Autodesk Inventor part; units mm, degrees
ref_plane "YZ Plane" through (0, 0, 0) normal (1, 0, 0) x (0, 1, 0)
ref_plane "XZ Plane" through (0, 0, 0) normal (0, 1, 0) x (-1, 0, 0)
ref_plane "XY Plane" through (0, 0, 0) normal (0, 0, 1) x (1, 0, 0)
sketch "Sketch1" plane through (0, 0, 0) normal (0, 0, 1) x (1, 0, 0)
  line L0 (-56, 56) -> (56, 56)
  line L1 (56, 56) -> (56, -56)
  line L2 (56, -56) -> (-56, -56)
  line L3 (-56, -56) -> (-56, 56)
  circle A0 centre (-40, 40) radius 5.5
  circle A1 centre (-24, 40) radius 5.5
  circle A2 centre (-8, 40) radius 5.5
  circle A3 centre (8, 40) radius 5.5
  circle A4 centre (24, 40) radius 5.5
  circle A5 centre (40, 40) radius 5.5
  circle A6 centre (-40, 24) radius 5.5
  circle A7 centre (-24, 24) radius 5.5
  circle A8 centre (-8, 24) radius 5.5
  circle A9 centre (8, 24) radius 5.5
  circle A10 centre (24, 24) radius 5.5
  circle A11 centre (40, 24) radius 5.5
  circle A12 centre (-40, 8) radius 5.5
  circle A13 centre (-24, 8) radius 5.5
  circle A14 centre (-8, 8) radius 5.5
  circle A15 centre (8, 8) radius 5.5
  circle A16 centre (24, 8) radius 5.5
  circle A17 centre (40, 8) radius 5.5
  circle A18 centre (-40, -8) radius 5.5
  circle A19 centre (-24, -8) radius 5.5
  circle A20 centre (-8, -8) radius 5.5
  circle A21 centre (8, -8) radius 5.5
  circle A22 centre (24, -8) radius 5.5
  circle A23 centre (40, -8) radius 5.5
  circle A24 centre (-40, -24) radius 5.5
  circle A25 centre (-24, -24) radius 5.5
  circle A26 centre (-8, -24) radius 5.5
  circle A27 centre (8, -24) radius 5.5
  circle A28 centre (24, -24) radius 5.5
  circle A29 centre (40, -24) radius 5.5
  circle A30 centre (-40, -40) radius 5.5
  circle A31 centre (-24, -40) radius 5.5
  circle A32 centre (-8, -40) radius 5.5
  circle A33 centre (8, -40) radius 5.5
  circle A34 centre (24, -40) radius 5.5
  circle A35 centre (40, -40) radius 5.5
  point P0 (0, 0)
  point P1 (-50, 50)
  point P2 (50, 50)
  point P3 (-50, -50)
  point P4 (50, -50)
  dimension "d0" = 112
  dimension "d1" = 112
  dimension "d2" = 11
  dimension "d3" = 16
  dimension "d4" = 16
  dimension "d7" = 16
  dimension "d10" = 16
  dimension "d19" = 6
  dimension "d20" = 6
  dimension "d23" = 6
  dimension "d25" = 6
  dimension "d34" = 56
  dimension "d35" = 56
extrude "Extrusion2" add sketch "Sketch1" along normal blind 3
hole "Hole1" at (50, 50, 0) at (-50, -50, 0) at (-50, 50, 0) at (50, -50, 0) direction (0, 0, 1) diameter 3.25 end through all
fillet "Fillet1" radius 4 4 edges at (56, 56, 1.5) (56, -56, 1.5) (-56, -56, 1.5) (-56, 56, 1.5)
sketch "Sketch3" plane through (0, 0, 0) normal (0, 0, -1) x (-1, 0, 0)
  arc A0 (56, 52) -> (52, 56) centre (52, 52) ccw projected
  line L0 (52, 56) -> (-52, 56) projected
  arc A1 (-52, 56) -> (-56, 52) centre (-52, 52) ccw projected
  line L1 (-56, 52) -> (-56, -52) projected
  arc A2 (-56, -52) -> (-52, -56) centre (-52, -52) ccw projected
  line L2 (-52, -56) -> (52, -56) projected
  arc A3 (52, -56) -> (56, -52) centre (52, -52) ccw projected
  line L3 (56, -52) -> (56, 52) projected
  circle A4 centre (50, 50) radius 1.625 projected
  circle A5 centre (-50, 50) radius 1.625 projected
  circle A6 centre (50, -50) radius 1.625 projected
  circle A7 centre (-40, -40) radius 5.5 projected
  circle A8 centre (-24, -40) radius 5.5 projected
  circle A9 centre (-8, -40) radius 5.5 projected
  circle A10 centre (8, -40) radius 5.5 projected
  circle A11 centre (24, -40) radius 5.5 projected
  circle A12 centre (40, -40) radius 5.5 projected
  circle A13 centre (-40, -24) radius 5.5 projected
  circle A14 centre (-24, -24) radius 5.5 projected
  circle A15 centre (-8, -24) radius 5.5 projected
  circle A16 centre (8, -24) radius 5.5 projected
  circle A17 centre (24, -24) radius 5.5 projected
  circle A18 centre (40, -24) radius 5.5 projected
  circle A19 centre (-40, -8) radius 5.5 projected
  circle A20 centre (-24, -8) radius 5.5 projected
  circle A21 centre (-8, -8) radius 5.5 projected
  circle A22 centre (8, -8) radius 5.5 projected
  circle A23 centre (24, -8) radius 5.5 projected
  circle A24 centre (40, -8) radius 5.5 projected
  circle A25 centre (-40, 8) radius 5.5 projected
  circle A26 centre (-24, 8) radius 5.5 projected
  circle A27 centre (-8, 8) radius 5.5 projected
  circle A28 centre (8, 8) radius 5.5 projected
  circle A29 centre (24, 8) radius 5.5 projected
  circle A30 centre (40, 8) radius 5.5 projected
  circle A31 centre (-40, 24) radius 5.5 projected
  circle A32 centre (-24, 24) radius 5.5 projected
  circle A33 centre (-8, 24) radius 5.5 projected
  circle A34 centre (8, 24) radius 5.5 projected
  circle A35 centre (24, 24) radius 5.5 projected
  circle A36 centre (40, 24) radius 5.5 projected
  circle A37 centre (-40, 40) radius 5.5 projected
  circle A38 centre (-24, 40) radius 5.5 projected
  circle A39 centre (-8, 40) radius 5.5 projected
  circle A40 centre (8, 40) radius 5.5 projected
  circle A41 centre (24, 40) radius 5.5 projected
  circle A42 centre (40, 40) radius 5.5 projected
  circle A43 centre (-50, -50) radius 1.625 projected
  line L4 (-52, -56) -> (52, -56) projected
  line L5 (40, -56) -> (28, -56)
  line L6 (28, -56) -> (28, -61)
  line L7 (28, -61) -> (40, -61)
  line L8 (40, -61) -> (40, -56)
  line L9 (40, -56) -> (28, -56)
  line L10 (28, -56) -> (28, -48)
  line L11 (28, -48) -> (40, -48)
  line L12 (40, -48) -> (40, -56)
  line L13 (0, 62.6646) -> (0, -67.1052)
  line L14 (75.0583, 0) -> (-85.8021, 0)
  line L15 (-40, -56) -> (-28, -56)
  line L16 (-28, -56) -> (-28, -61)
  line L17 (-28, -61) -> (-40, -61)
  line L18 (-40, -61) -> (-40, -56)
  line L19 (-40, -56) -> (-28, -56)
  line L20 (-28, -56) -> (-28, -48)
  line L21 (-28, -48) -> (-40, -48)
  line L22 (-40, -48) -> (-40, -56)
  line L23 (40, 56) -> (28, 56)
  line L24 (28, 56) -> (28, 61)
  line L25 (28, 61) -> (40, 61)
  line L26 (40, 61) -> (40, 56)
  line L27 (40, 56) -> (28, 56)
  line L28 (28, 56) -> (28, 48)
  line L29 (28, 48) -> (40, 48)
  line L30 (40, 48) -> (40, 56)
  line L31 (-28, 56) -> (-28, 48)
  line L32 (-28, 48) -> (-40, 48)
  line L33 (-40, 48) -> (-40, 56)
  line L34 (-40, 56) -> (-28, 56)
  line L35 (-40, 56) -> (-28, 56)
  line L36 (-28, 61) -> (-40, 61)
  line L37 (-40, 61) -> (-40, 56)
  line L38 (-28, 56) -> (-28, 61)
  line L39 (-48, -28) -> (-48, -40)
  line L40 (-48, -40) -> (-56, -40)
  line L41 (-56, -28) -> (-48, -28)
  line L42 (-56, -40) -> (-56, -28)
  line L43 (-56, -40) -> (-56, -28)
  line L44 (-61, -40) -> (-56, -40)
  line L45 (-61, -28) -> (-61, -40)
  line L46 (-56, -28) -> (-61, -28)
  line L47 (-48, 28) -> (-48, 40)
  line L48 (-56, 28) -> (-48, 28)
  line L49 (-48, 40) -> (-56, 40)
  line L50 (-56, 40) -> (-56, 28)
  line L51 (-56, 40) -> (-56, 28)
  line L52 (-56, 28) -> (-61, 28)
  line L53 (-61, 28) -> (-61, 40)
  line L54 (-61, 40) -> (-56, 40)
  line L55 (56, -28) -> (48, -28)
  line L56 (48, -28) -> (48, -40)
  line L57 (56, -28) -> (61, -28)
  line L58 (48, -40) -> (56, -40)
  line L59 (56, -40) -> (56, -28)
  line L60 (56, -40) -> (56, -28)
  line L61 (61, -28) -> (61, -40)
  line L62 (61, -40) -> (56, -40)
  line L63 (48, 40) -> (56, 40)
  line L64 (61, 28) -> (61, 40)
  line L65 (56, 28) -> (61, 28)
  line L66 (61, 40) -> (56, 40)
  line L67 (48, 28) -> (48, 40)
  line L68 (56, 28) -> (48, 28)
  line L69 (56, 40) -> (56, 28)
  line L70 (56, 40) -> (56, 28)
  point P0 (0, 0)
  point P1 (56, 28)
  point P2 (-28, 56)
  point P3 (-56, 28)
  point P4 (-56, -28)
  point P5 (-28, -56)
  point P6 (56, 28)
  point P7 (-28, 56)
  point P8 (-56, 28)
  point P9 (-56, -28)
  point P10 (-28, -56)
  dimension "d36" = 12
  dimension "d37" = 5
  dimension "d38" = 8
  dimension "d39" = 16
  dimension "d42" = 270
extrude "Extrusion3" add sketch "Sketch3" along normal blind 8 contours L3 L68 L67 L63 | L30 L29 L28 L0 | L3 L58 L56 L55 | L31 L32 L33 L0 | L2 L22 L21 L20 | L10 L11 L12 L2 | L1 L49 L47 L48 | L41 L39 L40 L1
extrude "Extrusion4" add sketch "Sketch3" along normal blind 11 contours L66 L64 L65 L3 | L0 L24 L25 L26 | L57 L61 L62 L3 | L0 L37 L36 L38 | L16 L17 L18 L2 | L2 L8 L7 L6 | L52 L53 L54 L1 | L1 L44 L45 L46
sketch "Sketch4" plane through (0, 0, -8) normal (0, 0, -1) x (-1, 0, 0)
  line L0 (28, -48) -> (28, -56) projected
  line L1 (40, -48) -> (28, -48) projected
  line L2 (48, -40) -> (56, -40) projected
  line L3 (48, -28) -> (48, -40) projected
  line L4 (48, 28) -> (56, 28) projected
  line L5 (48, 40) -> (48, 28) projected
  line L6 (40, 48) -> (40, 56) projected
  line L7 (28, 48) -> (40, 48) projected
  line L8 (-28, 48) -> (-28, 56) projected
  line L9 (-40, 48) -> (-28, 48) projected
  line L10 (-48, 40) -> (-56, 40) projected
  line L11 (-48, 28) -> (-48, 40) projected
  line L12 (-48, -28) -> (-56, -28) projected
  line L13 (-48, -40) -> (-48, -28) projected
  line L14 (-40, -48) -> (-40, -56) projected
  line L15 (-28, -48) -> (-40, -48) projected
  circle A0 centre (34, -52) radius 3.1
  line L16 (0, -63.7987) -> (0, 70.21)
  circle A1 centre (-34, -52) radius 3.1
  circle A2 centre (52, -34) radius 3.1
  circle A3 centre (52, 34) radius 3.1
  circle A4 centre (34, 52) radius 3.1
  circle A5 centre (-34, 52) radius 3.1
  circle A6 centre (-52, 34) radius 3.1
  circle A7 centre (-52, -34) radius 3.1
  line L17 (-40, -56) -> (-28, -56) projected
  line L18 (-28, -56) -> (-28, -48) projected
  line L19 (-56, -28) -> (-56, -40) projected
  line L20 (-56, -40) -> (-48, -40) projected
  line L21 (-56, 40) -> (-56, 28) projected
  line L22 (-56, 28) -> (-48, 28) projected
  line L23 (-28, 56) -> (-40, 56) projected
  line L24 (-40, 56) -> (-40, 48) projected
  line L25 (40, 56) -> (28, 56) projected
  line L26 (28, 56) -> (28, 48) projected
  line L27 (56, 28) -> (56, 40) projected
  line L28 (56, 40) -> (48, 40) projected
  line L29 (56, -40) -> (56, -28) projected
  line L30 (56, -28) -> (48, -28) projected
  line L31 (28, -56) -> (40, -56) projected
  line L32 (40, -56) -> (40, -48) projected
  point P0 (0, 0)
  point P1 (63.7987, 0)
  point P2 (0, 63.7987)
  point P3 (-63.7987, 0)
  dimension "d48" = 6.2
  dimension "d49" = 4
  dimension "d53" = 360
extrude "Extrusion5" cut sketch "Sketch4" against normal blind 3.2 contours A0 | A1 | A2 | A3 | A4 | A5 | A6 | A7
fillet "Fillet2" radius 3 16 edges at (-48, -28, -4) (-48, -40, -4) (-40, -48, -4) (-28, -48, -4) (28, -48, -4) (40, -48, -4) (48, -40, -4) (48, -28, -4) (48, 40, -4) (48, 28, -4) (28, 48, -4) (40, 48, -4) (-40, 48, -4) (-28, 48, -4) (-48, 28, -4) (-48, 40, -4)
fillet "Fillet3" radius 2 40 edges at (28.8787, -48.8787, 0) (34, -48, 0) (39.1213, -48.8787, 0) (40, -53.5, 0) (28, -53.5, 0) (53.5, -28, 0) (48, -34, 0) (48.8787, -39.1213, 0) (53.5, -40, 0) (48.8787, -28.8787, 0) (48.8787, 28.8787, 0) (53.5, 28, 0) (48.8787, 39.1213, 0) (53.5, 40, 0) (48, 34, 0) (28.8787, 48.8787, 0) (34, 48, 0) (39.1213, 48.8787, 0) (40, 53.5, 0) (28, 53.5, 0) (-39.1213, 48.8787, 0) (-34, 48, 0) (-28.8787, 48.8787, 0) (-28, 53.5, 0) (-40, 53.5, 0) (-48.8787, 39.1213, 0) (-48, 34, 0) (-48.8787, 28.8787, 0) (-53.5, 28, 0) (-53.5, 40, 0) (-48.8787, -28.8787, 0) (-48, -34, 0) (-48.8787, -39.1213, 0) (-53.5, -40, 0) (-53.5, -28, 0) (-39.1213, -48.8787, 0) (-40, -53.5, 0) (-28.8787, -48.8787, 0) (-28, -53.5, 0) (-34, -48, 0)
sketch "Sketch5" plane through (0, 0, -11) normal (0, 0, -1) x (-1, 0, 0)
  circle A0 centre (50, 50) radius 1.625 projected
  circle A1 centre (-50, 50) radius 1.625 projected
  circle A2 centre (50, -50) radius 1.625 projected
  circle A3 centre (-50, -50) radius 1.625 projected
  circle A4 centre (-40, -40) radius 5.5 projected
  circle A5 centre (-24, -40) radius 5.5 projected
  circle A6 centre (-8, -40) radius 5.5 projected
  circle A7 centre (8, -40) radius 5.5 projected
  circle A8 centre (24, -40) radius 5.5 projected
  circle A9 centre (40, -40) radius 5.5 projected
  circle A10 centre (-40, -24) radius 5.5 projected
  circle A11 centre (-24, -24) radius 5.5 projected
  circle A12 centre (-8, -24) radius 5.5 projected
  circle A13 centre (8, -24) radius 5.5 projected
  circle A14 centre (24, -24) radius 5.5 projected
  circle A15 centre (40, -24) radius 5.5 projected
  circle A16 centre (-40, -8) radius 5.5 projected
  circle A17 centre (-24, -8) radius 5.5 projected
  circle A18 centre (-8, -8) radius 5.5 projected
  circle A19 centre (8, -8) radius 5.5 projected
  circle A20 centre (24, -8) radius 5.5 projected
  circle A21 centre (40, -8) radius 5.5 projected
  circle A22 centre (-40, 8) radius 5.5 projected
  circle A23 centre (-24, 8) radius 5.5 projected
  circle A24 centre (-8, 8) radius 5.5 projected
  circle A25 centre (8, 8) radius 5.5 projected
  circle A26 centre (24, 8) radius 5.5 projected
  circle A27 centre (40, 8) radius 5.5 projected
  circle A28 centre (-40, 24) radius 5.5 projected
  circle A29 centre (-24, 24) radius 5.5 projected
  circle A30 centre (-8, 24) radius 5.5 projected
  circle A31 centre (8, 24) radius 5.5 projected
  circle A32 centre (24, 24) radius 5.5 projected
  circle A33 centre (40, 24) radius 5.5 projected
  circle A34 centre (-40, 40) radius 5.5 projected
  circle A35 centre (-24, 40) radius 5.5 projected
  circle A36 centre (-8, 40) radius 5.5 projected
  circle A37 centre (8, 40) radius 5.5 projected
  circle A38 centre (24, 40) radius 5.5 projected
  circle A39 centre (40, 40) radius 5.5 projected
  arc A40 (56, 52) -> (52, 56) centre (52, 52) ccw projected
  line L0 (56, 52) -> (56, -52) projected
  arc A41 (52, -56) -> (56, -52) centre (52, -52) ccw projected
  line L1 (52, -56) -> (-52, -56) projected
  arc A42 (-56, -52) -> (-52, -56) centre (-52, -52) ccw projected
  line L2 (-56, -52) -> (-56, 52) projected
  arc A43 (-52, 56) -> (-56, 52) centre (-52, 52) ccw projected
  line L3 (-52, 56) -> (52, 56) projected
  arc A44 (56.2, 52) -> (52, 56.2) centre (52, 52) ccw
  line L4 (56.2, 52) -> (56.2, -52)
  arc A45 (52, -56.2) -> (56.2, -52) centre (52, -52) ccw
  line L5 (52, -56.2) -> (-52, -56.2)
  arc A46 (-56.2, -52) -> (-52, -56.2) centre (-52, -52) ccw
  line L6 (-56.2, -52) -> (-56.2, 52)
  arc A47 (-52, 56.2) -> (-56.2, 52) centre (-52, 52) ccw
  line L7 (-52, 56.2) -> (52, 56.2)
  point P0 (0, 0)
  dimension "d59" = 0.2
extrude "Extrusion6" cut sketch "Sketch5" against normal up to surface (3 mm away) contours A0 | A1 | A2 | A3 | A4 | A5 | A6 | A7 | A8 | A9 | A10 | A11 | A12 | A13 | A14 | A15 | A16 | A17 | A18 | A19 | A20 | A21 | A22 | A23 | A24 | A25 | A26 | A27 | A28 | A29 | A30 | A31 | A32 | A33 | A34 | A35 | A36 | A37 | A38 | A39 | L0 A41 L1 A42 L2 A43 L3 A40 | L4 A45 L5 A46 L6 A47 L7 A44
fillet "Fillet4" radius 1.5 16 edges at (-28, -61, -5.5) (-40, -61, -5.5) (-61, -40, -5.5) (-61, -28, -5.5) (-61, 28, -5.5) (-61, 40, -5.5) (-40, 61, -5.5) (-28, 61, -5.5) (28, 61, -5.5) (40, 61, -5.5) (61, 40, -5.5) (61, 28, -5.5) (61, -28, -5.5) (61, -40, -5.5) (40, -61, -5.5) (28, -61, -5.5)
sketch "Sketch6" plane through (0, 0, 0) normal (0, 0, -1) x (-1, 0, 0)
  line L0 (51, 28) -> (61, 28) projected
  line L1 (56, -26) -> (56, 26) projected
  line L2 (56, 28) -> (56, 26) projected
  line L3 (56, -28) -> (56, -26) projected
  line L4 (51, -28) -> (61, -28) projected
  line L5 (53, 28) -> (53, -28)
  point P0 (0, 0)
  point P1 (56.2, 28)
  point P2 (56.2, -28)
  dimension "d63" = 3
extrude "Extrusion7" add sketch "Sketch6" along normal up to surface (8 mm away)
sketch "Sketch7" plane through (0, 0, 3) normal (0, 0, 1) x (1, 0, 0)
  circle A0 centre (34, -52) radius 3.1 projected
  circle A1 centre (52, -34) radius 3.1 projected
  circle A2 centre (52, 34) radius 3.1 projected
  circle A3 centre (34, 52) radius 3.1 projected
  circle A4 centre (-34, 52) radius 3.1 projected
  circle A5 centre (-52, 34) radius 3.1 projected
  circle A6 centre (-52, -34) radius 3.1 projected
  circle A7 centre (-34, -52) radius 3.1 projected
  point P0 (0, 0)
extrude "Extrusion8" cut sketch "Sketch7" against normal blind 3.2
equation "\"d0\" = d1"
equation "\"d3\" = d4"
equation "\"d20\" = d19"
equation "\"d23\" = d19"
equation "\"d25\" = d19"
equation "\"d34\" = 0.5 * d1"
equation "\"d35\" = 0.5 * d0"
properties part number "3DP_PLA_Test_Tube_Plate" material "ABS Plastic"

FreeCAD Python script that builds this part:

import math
import FreeCAD as App
import Part
import Sketcher
from FreeCAD import Vector
Q = App.Units.Quantity


def edges_at(feature, points):
    """Names of the edges that pass closest to the given points."""
    edges = feature.Shape.Edges
    near = lambda p: min(range(len(edges)), key=lambda i: edges[i].distToShape(Part.Vertex(*p))[0])
    return sorted({f"Edge{near(p) + 1}" for p in points})

doc = App.newDocument("Part")
body = doc.addObject("PartDesign::Body", "Body")

sketch1 = doc.addObject("Sketcher::SketchObject", "Sketch")
body.addObject(sketch1)
sketch1.AttachmentSupport = (doc.XY_Plane, [""])
sketch1.MapMode = "FlatFace"
sketch1.addGeometry([
    Part.LineSegment(Vector(56, 56, 0), Vector(-56, 56, 0)),
    Part.LineSegment(Vector(-56, 56, 0), Vector(-56, -56, 0)),
    Part.LineSegment(Vector(-56, -56, 0), Vector(56, -56, 0)),
    Part.LineSegment(Vector(56, -56, 0), Vector(56, 56, 0)),
    Part.Circle(Vector(-40, -40, 0), Vector(0, 0, 1), 5.5),
    Part.Circle(Vector(-24, -40, 0), Vector(0, 0, 1), 5.5),
    Part.Circle(Vector(-8, -40, 0), Vector(0, 0, 1), 5.5),
    Part.Circle(Vector(-40, -24, 0), Vector(0, 0, 1), 5.5),
    Part.Circle(Vector(-40, -8, 0), Vector(0, 0, 1), 5.5),
    Part.Circle(Vector(-24, -24, 0), Vector(0, 0, 1), 5.5),
    Part.Circle(Vector(-8, -24, 0), Vector(0, 0, 1), 5.5),
    Part.Circle(Vector(-24, -8, 0), Vector(0, 0, 1), 5.5),
    Part.Circle(Vector(-8, -8, 0), Vector(0, 0, 1), 5.5),
    Part.Circle(Vector(8, -40, 0), Vector(0, 0, 1), 5.5),
    Part.Circle(Vector(24, -40, 0), Vector(0, 0, 1), 5.5),
    Part.Circle(Vector(40, -40, 0), Vector(0, 0, 1), 5.5),
    Part.Circle(Vector(8, -24, 0), Vector(0, 0, 1), 5.5),
    Part.Circle(Vector(24, -24, 0), Vector(0, 0, 1), 5.5),
    Part.Circle(Vector(8, -8, 0), Vector(0, 0, 1), 5.5),
    Part.Circle(Vector(24, -8, 0), Vector(0, 0, 1), 5.5),
    Part.Circle(Vector(40, -24, 0), Vector(0, 0, 1), 5.5),
    Part.Circle(Vector(40, -8, 0), Vector(0, 0, 1), 5.5),
    Part.Circle(Vector(-40, 8, 0), Vector(0, 0, 1), 5.5),
    Part.Circle(Vector(-40, 24, 0), Vector(0, 0, 1), 5.5),
    Part.Circle(Vector(-24, 8, 0), Vector(0, 0, 1), 5.5),
    Part.Circle(Vector(-8, 8, 0), Vector(0, 0, 1), 5.5),
    Part.Circle(Vector(-24, 24, 0), Vector(0, 0, 1), 5.5),
    Part.Circle(Vector(-8, 24, 0), Vector(0, 0, 1), 5.5),
    Part.Circle(Vector(-40, 40, 0), Vector(0, 0, 1), 5.5),
    Part.Circle(Vector(-24, 40, 0), Vector(0, 0, 1), 5.5),
    Part.Circle(Vector(-8, 40, 0), Vector(0, 0, 1), 5.5),
    Part.Circle(Vector(8, 8, 0), Vector(0, 0, 1), 5.5),
    Part.Circle(Vector(24, 8, 0), Vector(0, 0, 1), 5.5),
    Part.Circle(Vector(8, 24, 0), Vector(0, 0, 1), 5.5),
    Part.Circle(Vector(24, 24, 0), Vector(0, 0, 1), 5.5),
    Part.Circle(Vector(40, 8, 0), Vector(0, 0, 1), 5.5),
    Part.Circle(Vector(40, 24, 0), Vector(0, 0, 1), 5.5),
    Part.Circle(Vector(8, 40, 0), Vector(0, 0, 1), 5.5),
    Part.Circle(Vector(24, 40, 0), Vector(0, 0, 1), 5.5),
    Part.Circle(Vector(40, 40, 0), Vector(0, 0, 1), 5.5),
], False)
sketch1.addConstraint([
    Sketcher.Constraint("Coincident", 0, 2, 1, 1),
    Sketcher.Constraint("Coincident", 1, 2, 2, 1),
    Sketcher.Constraint("Coincident", 2, 2, 3, 1),
    Sketcher.Constraint("Coincident", 3, 2, 0, 1),
    Sketcher.Constraint("Horizontal", 0),
    Sketcher.Constraint("Vertical", 1),
    Sketcher.Constraint("Horizontal", 2),
    Sketcher.Constraint("Vertical", 3),
    Sketcher.Constraint("Equal", 4, 5),
    Sketcher.Constraint("Equal", 5, 6),
    Sketcher.Constraint("Equal", 6, 7),
    Sketcher.Constraint("Equal", 7, 8),
    Sketcher.Constraint("Equal", 8, 9),
    Sketcher.Constraint("Equal", 9, 10),
    Sketcher.Constraint("Equal", 10, 11),
    Sketcher.Constraint("Equal", 11, 12),
    Sketcher.Constraint("Equal", 12, 13),
    Sketcher.Constraint("Equal", 13, 14),
    Sketcher.Constraint("Equal", 14, 15),
    Sketcher.Constraint("Equal", 15, 16),
    Sketcher.Constraint("Equal", 16, 17),
    Sketcher.Constraint("Equal", 17, 18),
    Sketcher.Constraint("Equal", 18, 19),
    Sketcher.Constraint("Equal", 19, 20),
    Sketcher.Constraint("Equal", 20, 21),
    Sketcher.Constraint("Equal", 21, 22),
    Sketcher.Constraint("Equal", 22, 23),
    Sketcher.Constraint("Equal", 23, 24),
    Sketcher.Constraint("Equal", 24, 25),
    Sketcher.Constraint("Equal", 25, 26),
    Sketcher.Constraint("Equal", 26, 27),
    Sketcher.Constraint("Equal", 27, 28),
    Sketcher.Constraint("Equal", 28, 29),
    Sketcher.Constraint("Equal", 29, 30),
    Sketcher.Constraint("Equal", 30, 31),
    Sketcher.Constraint("Equal", 31, 32),
    Sketcher.Constraint("Equal", 32, 33),
    Sketcher.Constraint("Equal", 33, 34),
    Sketcher.Constraint("Equal", 34, 35),
    Sketcher.Constraint("Equal", 35, 36),
    Sketcher.Constraint("Equal", 36, 37),
    Sketcher.Constraint("Equal", 37, 38),
    Sketcher.Constraint("Equal", 38, 39),
    Sketcher.Constraint("Symmetric", 21, 3, 22, 3, -1, 1),
    Sketcher.Constraint("Symmetric", 20, 3, 23, 3, -1, 1),
    Sketcher.Constraint("Symmetric", 19, 3, 24, 3, -1, 1),
    Sketcher.Constraint("Symmetric", 18, 3, 25, 3, -1, 1),
    Sketcher.Constraint("Symmetric", 17, 3, 26, 3, -1, 1),
    Sketcher.Constraint("Symmetric", 16, 3, 27, 3, -1, 1),
    Sketcher.Constraint("Symmetric", 15, 3, 28, 3, -1, 1),
    Sketcher.Constraint("Symmetric", 14, 3, 29, 3, -1, 1),
    Sketcher.Constraint("Symmetric", 13, 3, 30, 3, -1, 1),
    Sketcher.Constraint("Symmetric", 12, 3, 31, 3, -1, 1),
    Sketcher.Constraint("Symmetric", 11, 3, 32, 3, -1, 1),
    Sketcher.Constraint("Symmetric", 10, 3, 33, 3, -1, 1),
    Sketcher.Constraint("Symmetric", 9, 3, 34, 3, -1, 1),
    Sketcher.Constraint("Symmetric", 8, 3, 35, 3, -1, 1),
    Sketcher.Constraint("Symmetric", 7, 3, 36, 3, -1, 1),
    Sketcher.Constraint("Symmetric", 6, 3, 37, 3, -1, 1),
    Sketcher.Constraint("Symmetric", 5, 3, 38, 3, -1, 1),
    Sketcher.Constraint("Symmetric", 4, 3, 39, 3, -1, 1),
    Sketcher.Constraint("Symmetric", 0, 2, 2, 2, -1, 1),
    Sketcher.Constraint("Symmetric", 6, 3, 13, 3, -2),
    Sketcher.Constraint("Symmetric", 5, 3, 14, 3, -2),
    Sketcher.Constraint("Symmetric", 4, 3, 15, 3, -2),
    Sketcher.Constraint("Symmetric", 10, 3, 16, 3, -2),
    Sketcher.Constraint("Symmetric", 9, 3, 17, 3, -2),
    Sketcher.Constraint("Symmetric", 12, 3, 18, 3, -2),
    Sketcher.Constraint("Symmetric", 11, 3, 19, 3, -2),
    Sketcher.Constraint("Symmetric", 7, 3, 20, 3, -2),
    Sketcher.Constraint("Symmetric", 8, 3, 21, 3, -2),
    Sketcher.Constraint("Horizontal", 4, 3, 5, 3),
    Sketcher.Constraint("Horizontal", 5, 3, 6, 3),
    Sketcher.Constraint("Horizontal", 7, 3, 9, 3),
    Sketcher.Constraint("Horizontal", 9, 3, 10, 3),
    Sketcher.Constraint("Horizontal", 8, 3, 11, 3),
    Sketcher.Constraint("Horizontal", 11, 3, 12, 3),
    Sketcher.Constraint("Vertical", 4, 3, 7, 3),
    Sketcher.Constraint("Vertical", 7, 3, 8, 3),
    Sketcher.Constraint("Vertical", 5, 3, 9, 3),
    Sketcher.Constraint("Vertical", 6, 3, 10, 3),
    Sketcher.Constraint("Vertical", 9, 3, 11, 3),
    Sketcher.Constraint("Vertical", 10, 3, 12, 3),
    Sketcher.Constraint("Equal", 2, 1),
    Sketcher.Constraint("Diameter", 4, Q("11 mm")),
    Sketcher.Constraint("DistanceX", 0, 2, 0, 1, Q("112 mm")),
    Sketcher.Constraint("DistanceX", 4, 3, 5, 3, Q("16 mm")),
    Sketcher.Constraint("DistanceX", 5, 3, 6, 3, Q("16 mm")),
    Sketcher.Constraint("DistanceY", 4, 3, 7, 3, Q("16 mm")),
    Sketcher.Constraint("DistanceY", 7, 3, 8, 3, Q("16 mm")),
    Sketcher.Constraint("DistanceX", 6, 3, 13, 3, Q("16 mm")),
    Sketcher.Constraint("DistanceY", 8, 3, 22, 3, Q("16 mm")),
])
pad1 = doc.addObject("PartDesign::Pad", "Pad")
body.addObject(pad1)
pad1.Profile = sketch1
pad1.Length = 3

sketch2 = doc.addObject("Sketcher::SketchObject", "Sketch001")
body.addObject(sketch2)
sketch2.AttachmentSupport = (doc.XY_Plane, [""])
sketch2.MapMode = "FlatFace"
sketch2.addGeometry([
    Part.Circle(Vector(50, 50, 0), Vector(0, 0, 1), 1.625),
    Part.Circle(Vector(-50, -50, 0), Vector(0, 0, 1), 1.625),
    Part.Circle(Vector(-50, 50, 0), Vector(0, 0, 1), 1.625),
    Part.Circle(Vector(50, -50, 0), Vector(0, 0, 1), 1.625),
], False)
sketch2.addConstraint([
    Sketcher.Constraint("Equal", 0, 1),
    Sketcher.Constraint("Equal", 1, 2),
    Sketcher.Constraint("Equal", 2, 3),
    Sketcher.Constraint("Symmetric", 0, 3, 1, 3, -1, 1),
    Sketcher.Constraint("Symmetric", 2, 3, 3, 3, -1, 1),
    Sketcher.Constraint("Symmetric", 0, 3, 2, 3, -2),
    Sketcher.Constraint("Diameter", 0, Q("3.25 mm")),
    Sketcher.Constraint("DistanceX", -1, 1, 0, 3, Q("50 mm")),
    Sketcher.Constraint("DistanceY", -1, 1, 0, 3, Q("50 mm")),
])
doc.recompute()
hole = doc.addObject("PartDesign::Hole", "Hole")
body.addObject(hole)
hole.Profile = sketch2
hole.ThreadType = "None"
hole.Diameter = 3.25
hole.DepthType = "ThroughAll"
hole.Reversed = True
doc.recompute()

fillet = doc.addObject("PartDesign::Fillet", "Fillet")
body.addObject(fillet)
fillet.Base = (hole, edges_at(hole, [
    (56, 56, 1.5),
    (56, -56, 1.5),
    (-56, -56, 1.5),
    (-56, 56, 1.5),
]))
fillet.Radius = 4

sketch3 = doc.addObject("Sketcher::SketchObject", "Sketch002")
body.addObject(sketch3)
sketch3.AttachmentSupport = (doc.XY_Plane, [""])
sketch3.MapMode = "FlatFace"
sketch3.addGeometry([
    Part.LineSegment(Vector(-56, 28, 0), Vector(-56, 40, 0)),
    Part.LineSegment(Vector(-56, 40, 0), Vector(-48, 40, 0)),
    Part.LineSegment(Vector(-48, 40, 0), Vector(-48, 28, 0)),
    Part.LineSegment(Vector(-48, 28, 0), Vector(-56, 28, 0)),
    Part.LineSegment(Vector(-40, 48, 0), Vector(-40, 56, 0)),
    Part.LineSegment(Vector(-40, 56, 0), Vector(-28, 56, 0)),
    Part.LineSegment(Vector(-28, 56, 0), Vector(-28, 48, 0)),
    Part.LineSegment(Vector(-28, 48, 0), Vector(-40, 48, 0)),
    Part.LineSegment(Vector(-56, -40, 0), Vector(-56, -28, 0)),
    Part.LineSegment(Vector(-56, -28, 0), Vector(-48, -28, 0)),
    Part.LineSegment(Vector(-48, -28, 0), Vector(-48, -40, 0)),
    Part.LineSegment(Vector(-48, -40, 0), Vector(-56, -40, 0)),
    Part.LineSegment(Vector(28, 48, 0), Vector(28, 56, 0)),
    Part.LineSegment(Vector(28, 56, 0), Vector(40, 56, 0)),
    Part.LineSegment(Vector(40, 56, 0), Vector(40, 48, 0)),
    Part.LineSegment(Vector(40, 48, 0), Vector(28, 48, 0)),
    Part.LineSegment(Vector(40, -56, 0), Vector(28, -56, 0)),
    Part.LineSegment(Vector(28, -56, 0), Vector(28, -48, 0)),
    Part.LineSegment(Vector(28, -48, 0), Vector(40, -48, 0)),
    Part.LineSegment(Vector(40, -48, 0), Vector(40, -56, 0)),
    Part.LineSegment(Vector(-28, -48, 0), Vector(-28, -56, 0)),
    Part.LineSegment(Vector(-28, -56, 0), Vector(-40, -56, 0)),
    Part.LineSegment(Vector(-40, -56, 0), Vector(-40, -48, 0)),
    Part.LineSegment(Vector(-40, -48, 0), Vector(-28, -48, 0)),
    Part.LineSegment(Vector(56, 40, 0), Vector(56, 28, 0)),
    Part.LineSegment(Vector(56, 28, 0), Vector(48, 28, 0)),
    Part.LineSegment(Vector(48, 28, 0), Vector(48, 40, 0)),
    Part.LineSegment(Vector(48, 40, 0), Vector(56, 40, 0)),
    Part.LineSegment(Vector(48, -28, 0), Vector(56, -28, 0)),
    Part.LineSegment(Vector(56, -28, 0), Vector(56, -40, 0)),
    Part.LineSegment(Vector(56, -40, 0), Vector(48, -40, 0)),
    Part.LineSegment(Vector(48, -40, 0), Vector(48, -28, 0)),
], False)
sketch3.addConstraint([
    Sketcher.Constraint("Coincident", 0, 2, 1, 1),
    Sketcher.Constraint("Coincident", 1, 2, 2, 1),
    Sketcher.Constraint("Coincident", 2, 2, 3, 1),
    Sketcher.Constraint("Coincident", 3, 2, 0, 1),
    Sketcher.Constraint("Coincident", 4, 2, 5, 1),
    Sketcher.Constraint("Coincident", 5, 2, 6, 1),
    Sketcher.Constraint("Coincident", 6, 2, 7, 1),
    Sketcher.Constraint("Coincident", 7, 2, 4, 1),
    Sketcher.Constraint("Coincident", 8, 2, 9, 1),
    Sketcher.Constraint("Coincident", 9, 2, 10, 1),
    Sketcher.Constraint("Coincident", 10, 2, 11, 1),
    Sketcher.Constraint("Coincident", 11, 2, 8, 1),
    Sketcher.Constraint("Coincident", 12, 2, 13, 1),
    Sketcher.Constraint("Coincident", 13, 2, 14, 1),
    Sketcher.Constraint("Coincident", 14, 2, 15, 1),
    Sketcher.Constraint("Coincident", 15, 2, 12, 1),
    Sketcher.Constraint("Coincident", 16, 2, 17, 1),
    Sketcher.Constraint("Coincident", 17, 2, 18, 1),
    Sketcher.Constraint("Coincident", 18, 2, 19, 1),
    Sketcher.Constraint("Coincident", 19, 2, 16, 1),
    Sketcher.Constraint("Coincident", 20, 2, 21, 1),
    Sketcher.Constraint("Coincident", 21, 2, 22, 1),
    Sketcher.Constraint("Coincident", 22, 2, 23, 1),
    Sketcher.Constraint("Coincident", 23, 2, 20, 1),
    Sketcher.Constraint("Coincident", 24, 2, 25, 1),
    Sketcher.Constraint("Coincident", 25, 2, 26, 1),
    Sketcher.Constraint("Coincident", 26, 2, 27, 1),
    Sketcher.Constraint("Coincident", 27, 2, 24, 1),
    Sketcher.Constraint("Coincident", 28, 2, 29, 1),
    Sketcher.Constraint("Coincident", 29, 2, 30, 1),
    Sketcher.Constraint("Coincident", 30, 2, 31, 1),
    Sketcher.Constraint("Coincident", 31, 2, 28, 1),
    Sketcher.Constraint("Vertical", 0),
    Sketcher.Constraint("Horizontal", 1),
    Sketcher.Constraint("Vertical", 2),
    Sketcher.Constraint("Horizontal", 3),
    Sketcher.Constraint("Vertical", 4),
    Sketcher.Constraint("Horizontal", 5),
    Sketcher.Constraint("Vertical", 6),
    Sketcher.Constraint("Horizontal", 7),
    Sketcher.Constraint("Vertical", 8),
    Sketcher.Constraint("Horizontal", 9),
    Sketcher.Constraint("Vertical", 10),
    Sketcher.Constraint("Horizontal", 11),
    Sketcher.Constraint("Vertical", 12),
    Sketcher.Constraint("Horizontal", 13),
    Sketcher.Constraint("Vertical", 14),
    Sketcher.Constraint("Horizontal", 15),
    Sketcher.Constraint("Horizontal", 16),
    Sketcher.Constraint("Vertical", 17),
    Sketcher.Constraint("Horizontal", 18),
    Sketcher.Constraint("Vertical", 19),
    Sketcher.Constraint("Vertical", 20),
    Sketcher.Constraint("Horizontal", 21),
    Sketcher.Constraint("Vertical", 22),
    Sketcher.Constraint("Horizontal", 23),
    Sketcher.Constraint("Vertical", 24),
    Sketcher.Constraint("Horizontal", 25),
    Sketcher.Constraint("Vertical", 26),
    Sketcher.Constraint("Horizontal", 27),
    Sketcher.Constraint("Horizontal", 28),
    Sketcher.Constraint("Vertical", 29),
    Sketcher.Constraint("Horizontal", 30),
    Sketcher.Constraint("Vertical", 31),
    Sketcher.Constraint("Symmetric", 5, 2, 16, 2, -1, 1),
    Sketcher.Constraint("Symmetric", 7, 2, 18, 2, -1, 1),
    Sketcher.Constraint("Symmetric", 12, 2, 20, 2, -1, 1),
    Sketcher.Constraint("Symmetric", 14, 2, 22, 2, -1, 1),
    Sketcher.Constraint("Symmetric", 8, 2, 24, 2, -1, 1),
    Sketcher.Constraint("Symmetric", 10, 2, 26, 2, -1, 1),
    Sketcher.Constraint("Symmetric", 3, 2, 28, 2, -1, 1),
    Sketcher.Constraint("Symmetric", 1, 2, 30, 2, -1, 1),
    Sketcher.Constraint("Symmetric", 5, 2, 12, 2, -2),
    Sketcher.Constraint("Symmetric", 7, 2, 14, 2, -2),
    Sketcher.Constraint("Symmetric", 3, 2, 24, 2, -2),
    Sketcher.Constraint("Symmetric", 1, 2, 26, 2, -2),
    Sketcher.Constraint("Equal", 23, 0),
    Sketcher.Constraint("Equal", 30, 4),
    Sketcher.Constraint("DistanceX", 1, 1, 1, 2, Q("8 mm")),
    Sketcher.Constraint("DistanceX", 5, 1, 5, 2, Q("12 mm")),
    Sketcher.Constraint("DistanceX", 1, 2, 4, 2, Q("8 mm")),
    Sketcher.Constraint("DistanceY", 1, 2, 4, 2, Q("16 mm")),
    Sketcher.Constraint("DistanceX", 0, 2, -1, 1, Q("56 mm")),
    Sketcher.Constraint("DistanceY", -1, 1, 0, 2, Q("40 mm")),
])
pad2 = doc.addObject("PartDesign::Pad", "Pad001")
body.addObject(pad2)
pad2.Profile = sketch3
pad2.Length = 8
pad2.Reversed = True

sketch4 = doc.addObject("Sketcher::SketchObject", "Sketch003")
body.addObject(sketch4)
sketch4.AttachmentSupport = (doc.XY_Plane, [""])
sketch4.MapMode = "FlatFace"
sketch4.addGeometry([
    Part.LineSegment(Vector(-61, 40, 0), Vector(-56, 40, 0)),
    Part.LineSegment(Vector(-56, 40, 0), Vector(-56, 28, 0)),
    Part.LineSegment(Vector(-56, 28, 0), Vector(-61, 28, 0)),
    Part.LineSegment(Vector(-61, 28, 0), Vector(-61, 40, 0)),
    Part.LineSegment(Vector(-28, 56, 0), Vector(-40, 56, 0)),
    Part.LineSegment(Vector(-40, 56, 0), Vector(-40, 61, 0)),
    Part.LineSegment(Vector(-40, 61, 0), Vector(-28, 61, 0)),
    Part.LineSegment(Vector(-28, 61, 0), Vector(-28, 56, 0)),
    Part.LineSegment(Vector(-61, -28, 0), Vector(-56, -28, 0)),
    Part.LineSegment(Vector(-56, -28, 0), Vector(-56, -40, 0)),
    Part.LineSegment(Vector(-56, -40, 0), Vector(-61, -40, 0)),
    Part.LineSegment(Vector(-61, -40, 0), Vector(-61, -28, 0)),
    Part.LineSegment(Vector(40, 56, 0), Vector(28, 56, 0)),
    Part.LineSegment(Vector(28, 56, 0), Vector(28, 61, 0)),
    Part.LineSegment(Vector(28, 61, 0), Vector(40, 61, 0)),
    Part.LineSegment(Vector(40, 61, 0), Vector(40, 56, 0)),
    Part.LineSegment(Vector(28, -61, 0), Vector(28, -56, 0)),
    Part.LineSegment(Vector(28, -56, 0), Vector(40, -56, 0)),
    Part.LineSegment(Vector(40, -56, 0), Vector(40, -61, 0)),
    Part.LineSegment(Vector(40, -61, 0), Vector(28, -61, 0)),
    Part.LineSegment(Vector(-40, -56, 0), Vector(-28, -56, 0)),
    Part.LineSegment(Vector(-28, -56, 0), Vector(-28, -61, 0)),
    Part.LineSegment(Vector(-28, -61, 0), Vector(-40, -61, 0)),
    Part.LineSegment(Vector(-40, -61, 0), Vector(-40, -56, 0)),
    Part.LineSegment(Vector(61, 28, 0), Vector(56, 28, 0)),
    Part.LineSegment(Vector(56, 28, 0), Vector(56, 40, 0)),
    Part.LineSegment(Vector(56, 40, 0), Vector(61, 40, 0)),
    Part.LineSegment(Vector(61, 40, 0), Vector(61, 28, 0)),
    Part.LineSegment(Vector(56, -40, 0), Vector(56, -28, 0)),
    Part.LineSegment(Vector(56, -28, 0), Vector(61, -28, 0)),
    Part.LineSegment(Vector(61, -28, 0), Vector(61, -40, 0)),
    Part.LineSegment(Vector(61, -40, 0), Vector(56, -40, 0)),
], False)
sketch4.addConstraint([
    Sketcher.Constraint("Coincident", 0, 2, 1, 1),
    Sketcher.Constraint("Coincident", 1, 2, 2, 1),
    Sketcher.Constraint("Coincident", 2, 2, 3, 1),
    Sketcher.Constraint("Coincident", 3, 2, 0, 1),
    Sketcher.Constraint("Coincident", 4, 2, 5, 1),
    Sketcher.Constraint("Coincident", 5, 2, 6, 1),
    Sketcher.Constraint("Coincident", 6, 2, 7, 1),
    Sketcher.Constraint("Coincident", 7, 2, 4, 1),
    Sketcher.Constraint("Coincident", 8, 2, 9, 1),
    Sketcher.Constraint("Coincident", 9, 2, 10, 1),
    Sketcher.Constraint("Coincident", 10, 2, 11, 1),
    Sketcher.Constraint("Coincident", 11, 2, 8, 1),
    Sketcher.Constraint("Coincident", 12, 2, 13, 1),
    Sketcher.Constraint("Coincident", 13, 2, 14, 1),
    Sketcher.Constraint("Coincident", 14, 2, 15, 1),
    Sketcher.Constraint("Coincident", 15, 2, 12, 1),
    Sketcher.Constraint("Coincident", 16, 2, 17, 1),
    Sketcher.Constraint("Coincident", 17, 2, 18, 1),
    Sketcher.Constraint("Coincident", 18, 2, 19, 1),
    Sketcher.Constraint("Coincident", 19, 2, 16, 1),
    Sketcher.Constraint("Coincident", 20, 2, 21, 1),
    Sketcher.Constraint("Coincident", 21, 2, 22, 1),
    Sketcher.Constraint("Coincident", 22, 2, 23, 1),
    Sketcher.Constraint("Coincident", 23, 2, 20, 1),
    Sketcher.Constraint("Coincident", 24, 2, 25, 1),
    Sketcher.Constraint("Coincident", 25, 2, 26, 1),
    Sketcher.Constraint("Coincident", 26, 2, 27, 1),
    Sketcher.Constraint("Coincident", 27, 2, 24, 1),
    Sketcher.Constraint("Coincident", 28, 2, 29, 1),
    Sketcher.Constraint("Coincident", 29, 2, 30, 1),
    Sketcher.Constraint("Coincident", 30, 2, 31, 1),
    Sketcher.Constraint("Coincident", 31, 2, 28, 1),
    Sketcher.Constraint("Horizontal", 0),
    Sketcher.Constraint("Vertical", 1),
    Sketcher.Constraint("Horizontal", 2),
    Sketcher.Constraint("Vertical", 3),
    Sketcher.Constraint("Horizontal", 4),
    Sketcher.Constraint("Vertical", 5),
    Sketcher.Constraint("Horizontal", 6),
    Sketcher.Constraint("Vertical", 7),
    Sketcher.Constraint("Horizontal", 8),
    Sketcher.Constraint("Vertical", 9),
    Sketcher.Constraint("Horizontal", 10),
    Sketcher.Constraint("Vertical", 11),
    Sketcher.Constraint("Horizontal", 12),
    Sketcher.Constraint("Vertical", 13),
    Sketcher.Constraint("Horizontal", 14),
    Sketcher.Constraint("Vertical", 15),
    Sketcher.Constraint("Vertical", 16),
    Sketcher.Constraint("Horizontal", 17),
    Sketcher.Constraint("Vertical", 18),
    Sketcher.Constraint("Horizontal", 19),
    Sketcher.Constraint("Horizontal", 20),
    Sketcher.Constraint("Vertical", 21),
    Sketcher.Constraint("Horizontal", 22),
    Sketcher.Constraint("Vertical", 23),
    Sketcher.Constraint("Horizontal", 24),
    Sketcher.Constraint("Vertical", 25),
    Sketcher.Constraint("Horizontal", 26),
    Sketcher.Constraint("Vertical", 27),
    Sketcher.Constraint("Vertical", 28),
    Sketcher.Constraint("Horizontal", 29),
    Sketcher.Constraint("Vertical", 30),
    Sketcher.Constraint("Horizontal", 31),
    Sketcher.Constraint("Symmetric", 7, 2, 16, 2, -1, 1),
    Sketcher.Constraint("Symmetric", 5, 2, 18, 2, -1, 1),
    Sketcher.Constraint("Symmetric", 12, 2, 20, 2, -1, 1),
    Sketcher.Constraint("Symmetric", 14, 2, 22, 2, -1, 1),
    Sketcher.Constraint("Symmetric", 8, 2, 24, 2, -1, 1),
    Sketcher.Constraint("Symmetric", 10, 2, 26, 2, -1, 1),
    Sketcher.Constraint("Symmetric", 1, 2, 28, 2, -1, 1),
    Sketcher.Constraint("Symmetric", 3, 2, 30, 2, -1, 1),
    Sketcher.Constraint("Symmetric", 7, 2, 12, 2, -2),
    Sketcher.Constraint("Symmetric", 5, 2, 14, 2, -2),
    Sketcher.Constraint("Symmetric", 1, 2, 24, 2, -2),
    Sketcher.Constraint("Symmetric", 3, 2, 26, 2, -2),
    Sketcher.Constraint("Equal", 22, 1),
    Sketcher.Constraint("Equal", 31, 5),
    Sketcher.Constraint("DistanceX", 0, 1, 0, 2, Q("5 mm")),
    Sketcher.Constraint("DistanceX", 4, 2, 4, 1, Q("12 mm")),
    Sketcher.Constraint("DistanceX", 0, 2, 4, 2, Q("16 mm")),
    Sketcher.Constraint("DistanceY", 0, 2, 4, 2, Q("16 mm")),
    Sketcher.Constraint("DistanceX", 0, 2, -1, 1, Q("56 mm")),
    Sketcher.Constraint("DistanceY", -1, 1, 0, 2, Q("40 mm")),
])
pad3 = doc.addObject("PartDesign::Pad", "Pad002")
body.addObject(pad3)
pad3.Profile = sketch4
pad3.Length = 11
pad3.Reversed = True

sketch5 = doc.addObject("Sketcher::SketchObject", "Sketch004")
body.addObject(sketch5)
sketch5.AttachmentSupport = (doc.XY_Plane, [""])
sketch5.MapMode = "FlatFace"
sketch5.AttachmentOffset = App.Placement(Vector(0, 0, -8), App.Rotation())
sketch5.addGeometry([
    Part.Circle(Vector(-34, -52, 0), Vector(0, 0, 1), 3.1),
    Part.Circle(Vector(34, -52, 0), Vector(0, 0, 1), 3.1),
    Part.Circle(Vector(-52, -34, 0), Vector(0, 0, 1), 3.1),
    Part.Circle(Vector(-52, 34, 0), Vector(0, 0, 1), 3.1),
    Part.Circle(Vector(-34, 52, 0), Vector(0, 0, 1), 3.1),
    Part.Circle(Vector(34, 52, 0), Vector(0, 0, 1), 3.1),
    Part.Circle(Vector(52, 34, 0), Vector(0, 0, 1), 3.1),
    Part.Circle(Vector(52, -34, 0), Vector(0, 0, 1), 3.1),
], False)
sketch5.addConstraint([
    Sketcher.Constraint("Equal", 0, 1),
    Sketcher.Constraint("Equal", 1, 2),
    Sketcher.Constraint("Equal", 2, 3),
    Sketcher.Constraint("Equal", 3, 4),
    Sketcher.Constraint("Equal", 4, 5),
    Sketcher.Constraint("Equal", 5, 6),
    Sketcher.Constraint("Equal", 6, 7),
    Sketcher.Constraint("Symmetric", 1, 3, 4, 3, -1, 1),
    Sketcher.Constraint("Symmetric", 0, 3, 5, 3, -1, 1),
    Sketcher.Constraint("Symmetric", 2, 3, 6, 3, -1, 1),
    Sketcher.Constraint("Symmetric", 3, 3, 7, 3, -1, 1),
    Sketcher.Constraint("Symmetric", 0, 3, 1, 3, -2),
    Sketcher.Constraint("Symmetric", 3, 3, 6, 3, -2),
    Sketcher.Constraint("Diameter", 0, Q("6.2 mm")),
    Sketcher.Constraint("DistanceX", 0, 3, -1, 1, Q("34 mm")),
    Sketcher.Constraint("DistanceY", 0, 3, -1, 1, Q("52 mm")),
    Sketcher.Constraint("DistanceX", 2, 3, -1, 1, Q("52 mm")),
    Sketcher.Constraint("DistanceY", 2, 3, -1, 1, Q("34 mm")),
])
pocket1 = doc.addObject("PartDesign::Pocket", "Pocket")
body.addObject(pocket1)
pocket1.Profile = sketch5
pocket1.Length = 3.2
pocket1.Reversed = True
doc.recompute()

fillet2 = doc.addObject("PartDesign::Fillet", "Fillet001")
body.addObject(fillet2)
fillet2.Base = (pocket1, edges_at(pocket1, [
    (-48, -28, -4),
    (-48, -40, -4),
    (-40, -48, -4),
    (-28, -48, -4),
    (28, -48, -4),
    (40, -48, -4),
    (48, -40, -4),
    (48, -28, -4),
    (48, 40, -4),
    (48, 28, -4),
    (28, 48, -4),
    (40, 48, -4),
    (-40, 48, -4),
    (-28, 48, -4),
    (-48, 28, -4),
    (-48, 40, -4),
]))
fillet2.Radius = 3
doc.recompute()

fillet3 = doc.addObject("PartDesign::Fillet", "Fillet002")
body.addObject(fillet3)
fillet3.Base = (fillet2, edges_at(fillet2, [
    (28.879, -48.879, 0),
    (34, -48, 0),
    (39.121, -48.879, 0),
    (40, -53.5, 0),
    (28, -53.5, 0),
    (53.5, -28, 0),
    (48, -34, 0),
    (48.879, -39.121, 0),
    (53.5, -40, 0),
    (48.879, -28.879, 0),
    (48.879, 28.879, 0),
    (53.5, 28, 0),
    (48.879, 39.121, 0),
    (53.5, 40, 0),
    (48, 34, 0),
    (28.879, 48.879, 0),
    (34, 48, 0),
    (39.121, 48.879, 0),
    (40, 53.5, 0),
    (28, 53.5, 0),
    (-39.121, 48.879, 0),
    (-34, 48, 0),
    (-28.879, 48.879, 0),
    (-28, 53.5, 0),
    (-40, 53.5, 0),
    (-48.879, 39.121, 0),
    (-48, 34, 0),
    (-48.879, 28.879, 0),
    (-53.5, 28, 0),
    (-53.5, 40, 0),
    (-48.879, -28.879, 0),
    (-48, -34, 0),
    (-48.879, -39.121, 0),
    (-53.5, -40, 0),
    (-53.5, -28, 0),
    (-39.121, -48.879, 0),
    (-40, -53.5, 0),
    (-28.879, -48.879, 0),
    (-28, -53.5, 0),
    (-34, -48, 0),
]))
fillet3.Radius = 2

sketch6 = doc.addObject("Sketcher::SketchObject", "Sketch005")
body.addObject(sketch6)
sketch6.AttachmentSupport = (doc.XY_Plane, [""])
sketch6.MapMode = "FlatFace"
sketch6.AttachmentOffset = App.Placement(Vector(0, 0, -11), App.Rotation())
sketch6.addGeometry([
    Part.LineSegment(Vector(-56.2, -52, 0), Vector(-56.2, 52, 0)),
    Part.ArcOfCircle(Part.Circle(Vector(-52, 52, 0), Vector(0, 0, 1), 4.2), math.radians(90), math.radians(180)),
    Part.LineSegment(Vector(-52, 56.2, 0), Vector(52, 56.2, 0)),
    Part.ArcOfCircle(Part.Circle(Vector(52, 52, 0), Vector(0, 0, 1), 4.2), math.radians(0), math.radians(90)),
    Part.LineSegment(Vector(56.2, 52, 0), Vector(56.2, -52, 0)),
    Part.ArcOfCircle(Part.Circle(Vector(52, -52, 0), Vector(0, 0, 1), 4.2), math.radians(-90), math.radians(0)),
    Part.LineSegment(Vector(52, -56.2, 0), Vector(-52, -56.2, 0)),
    Part.ArcOfCircle(Part.Circle(Vector(-52, -52, 0), Vector(0, 0, 1), 4.2), math.radians(180), math.radians(270)),
], False)
sketch6.addConstraint([
    Sketcher.Constraint("Tangent", 0, 2, 1, 2),
    Sketcher.Constraint("Tangent", 1, 1, 2, 1),
    Sketcher.Constraint("Tangent", 2, 2, 3, 2),
    Sketcher.Constraint("Tangent", 3, 1, 4, 1),
    Sketcher.Constraint("Tangent", 4, 2, 5, 2),
    Sketcher.Constraint("Tangent", 5, 1, 6, 1),
    Sketcher.Constraint("Tangent", 6, 2, 7, 2),
    Sketcher.Constraint("Tangent", 7, 1, 0, 1),
    Sketcher.Constraint("Vertical", 0),
    Sketcher.Constraint("Horizontal", 2),
    Sketcher.Constraint("Vertical", 4),
    Sketcher.Constraint("Horizontal", 6),
    Sketcher.Constraint("Equal", 1, 3),
    Sketcher.Constraint("Equal", 3, 5),
    Sketcher.Constraint("Equal", 5, 7),
    Sketcher.Constraint("Symmetric", 1, 3, 5, 3, -1, 1),
    Sketcher.Constraint("Equal", 6, 0),
    Sketcher.Constraint("Radius", 1, Q("4.2 mm")),
    Sketcher.Constraint("DistanceX", 2, 1, 2, 2, Q("104 mm")),
])
pocket2 = doc.addObject("PartDesign::Pocket", "Pocket001")
body.addObject(pocket2)
pocket2.Profile = sketch6
pocket2.Length = 3
pocket2.Reversed = True
doc.recompute()

fillet4 = doc.addObject("PartDesign::Fillet", "Fillet003")
body.addObject(fillet4)
fillet4.Base = (pocket2, edges_at(pocket2, [
    (-28, -61, -5.5),
    (-40, -61, -5.5),
    (-61, -40, -5.5),
    (-61, -28, -5.5),
    (-61, 28, -5.5),
    (-61, 40, -5.5),
    (-40, 61, -5.5),
    (-28, 61, -5.5),
    (28, 61, -5.5),
    (40, 61, -5.5),
    (61, 40, -5.5),
    (61, 28, -5.5),
    (61, -28, -5.5),
    (61, -40, -5.5),
    (40, -61, -5.5),
    (28, -61, -5.5),
]))
fillet4.Radius = 1.5

sketch7 = doc.addObject("Sketcher::SketchObject", "Sketch006")
body.addObject(sketch7)
sketch7.AttachmentSupport = (doc.XY_Plane, [""])
sketch7.MapMode = "FlatFace"
sketch7.addGeometry([
    Part.LineSegment(Vector(-56, 28, 0), Vector(-53, 28, 0)),
    Part.LineSegment(Vector(-53, 28, 0), Vector(-53, -28, 0)),
    Part.LineSegment(Vector(-53, -28, 0), Vector(-56, -28, 0)),
    Part.LineSegment(Vector(-56, -28, 0), Vector(-56, 28, 0)),
], False)
sketch7.addConstraint([
    Sketcher.Constraint("Coincident", 0, 2, 1, 1),
    Sketcher.Constraint("Coincident", 1, 2, 2, 1),
    Sketcher.Constraint("Coincident", 2, 2, 3, 1),
    Sketcher.Constraint("Coincident", 3, 2, 0, 1),
    Sketcher.Constraint("Horizontal", 0),
    Sketcher.Constraint("Vertical", 1),
    Sketcher.Constraint("Horizontal", 2),
    Sketcher.Constraint("Vertical", 3),
    Sketcher.Constraint("DistanceX", 0, 1, 0, 2, Q("3 mm")),
    Sketcher.Constraint("DistanceY", 1, 2, 1, 1, Q("56 mm")),
    Sketcher.Constraint("DistanceX", 0, 2, -1, 1, Q("53 mm")),
    Sketcher.Constraint("DistanceY", -1, 1, 0, 2, Q("28 mm")),
])
pad4 = doc.addObject("PartDesign::Pad", "Pad003")
body.addObject(pad4)
pad4.Profile = sketch7
pad4.Length = 8
pad4.Reversed = True

sketch8 = doc.addObject("Sketcher::SketchObject", "Sketch007")
body.addObject(sketch8)
sketch8.AttachmentSupport = (doc.XY_Plane, [""])
sketch8.MapMode = "FlatFace"
sketch8.AttachmentOffset = App.Placement(Vector(0, 0, 3), App.Rotation())
sketch8.addGeometry([
    Part.Circle(Vector(34, -52, 0), Vector(0, 0, 1), 3.1),
    Part.Circle(Vector(52, -34, 0), Vector(0, 0, 1), 3.1),
    Part.Circle(Vector(52, 34, 0), Vector(0, 0, 1), 3.1),
    Part.Circle(Vector(34, 52, 0), Vector(0, 0, 1), 3.1),
    Part.Circle(Vector(-34, 52, 0), Vector(0, 0, 1), 3.1),
    Part.Circle(Vector(-52, 34, 0), Vector(0, 0, 1), 3.1),
    Part.Circle(Vector(-52, -34, 0), Vector(0, 0, 1), 3.1),
    Part.Circle(Vector(-34, -52, 0), Vector(0, 0, 1), 3.1),
], False)
sketch8.addConstraint([
    Sketcher.Constraint("Equal", 0, 1),
    Sketcher.Constraint("Equal", 1, 2),
    Sketcher.Constraint("Equal", 2, 3),
    Sketcher.Constraint("Equal", 3, 4),
    Sketcher.Constraint("Equal", 4, 5),
    Sketcher.Constraint("Equal", 5, 6),
    Sketcher.Constraint("Equal", 6, 7),
    Sketcher.Constraint("Symmetric", 0, 3, 4, 3, -1, 1),
    Sketcher.Constraint("Symmetric", 1, 3, 5, 3, -1, 1),
    Sketcher.Constraint("Symmetric", 2, 3, 6, 3, -1, 1),
    Sketcher.Constraint("Symmetric", 3, 3, 7, 3, -1, 1),
    Sketcher.Constraint("Symmetric", 3, 3, 4, 3, -2),
    Sketcher.Constraint("Symmetric", 2, 3, 5, 3, -2),
    Sketcher.Constraint("Diameter", 0, Q("6.2 mm")),
    Sketcher.Constraint("DistanceX", -1, 1, 0, 3, Q("34 mm")),
    Sketcher.Constraint("DistanceY", 0, 3, -1, 1, Q("52 mm")),
    Sketcher.Constraint("DistanceX", -1, 1, 1, 3, Q("52 mm")),
    Sketcher.Constraint("DistanceY", 1, 3, -1, 1, Q("34 mm")),
])
pocket3 = doc.addObject("PartDesign::Pocket", "Pocket002")
body.addObject(pocket3)
pocket3.Profile = sketch8
pocket3.Length = 3.2

doc.recompute()
